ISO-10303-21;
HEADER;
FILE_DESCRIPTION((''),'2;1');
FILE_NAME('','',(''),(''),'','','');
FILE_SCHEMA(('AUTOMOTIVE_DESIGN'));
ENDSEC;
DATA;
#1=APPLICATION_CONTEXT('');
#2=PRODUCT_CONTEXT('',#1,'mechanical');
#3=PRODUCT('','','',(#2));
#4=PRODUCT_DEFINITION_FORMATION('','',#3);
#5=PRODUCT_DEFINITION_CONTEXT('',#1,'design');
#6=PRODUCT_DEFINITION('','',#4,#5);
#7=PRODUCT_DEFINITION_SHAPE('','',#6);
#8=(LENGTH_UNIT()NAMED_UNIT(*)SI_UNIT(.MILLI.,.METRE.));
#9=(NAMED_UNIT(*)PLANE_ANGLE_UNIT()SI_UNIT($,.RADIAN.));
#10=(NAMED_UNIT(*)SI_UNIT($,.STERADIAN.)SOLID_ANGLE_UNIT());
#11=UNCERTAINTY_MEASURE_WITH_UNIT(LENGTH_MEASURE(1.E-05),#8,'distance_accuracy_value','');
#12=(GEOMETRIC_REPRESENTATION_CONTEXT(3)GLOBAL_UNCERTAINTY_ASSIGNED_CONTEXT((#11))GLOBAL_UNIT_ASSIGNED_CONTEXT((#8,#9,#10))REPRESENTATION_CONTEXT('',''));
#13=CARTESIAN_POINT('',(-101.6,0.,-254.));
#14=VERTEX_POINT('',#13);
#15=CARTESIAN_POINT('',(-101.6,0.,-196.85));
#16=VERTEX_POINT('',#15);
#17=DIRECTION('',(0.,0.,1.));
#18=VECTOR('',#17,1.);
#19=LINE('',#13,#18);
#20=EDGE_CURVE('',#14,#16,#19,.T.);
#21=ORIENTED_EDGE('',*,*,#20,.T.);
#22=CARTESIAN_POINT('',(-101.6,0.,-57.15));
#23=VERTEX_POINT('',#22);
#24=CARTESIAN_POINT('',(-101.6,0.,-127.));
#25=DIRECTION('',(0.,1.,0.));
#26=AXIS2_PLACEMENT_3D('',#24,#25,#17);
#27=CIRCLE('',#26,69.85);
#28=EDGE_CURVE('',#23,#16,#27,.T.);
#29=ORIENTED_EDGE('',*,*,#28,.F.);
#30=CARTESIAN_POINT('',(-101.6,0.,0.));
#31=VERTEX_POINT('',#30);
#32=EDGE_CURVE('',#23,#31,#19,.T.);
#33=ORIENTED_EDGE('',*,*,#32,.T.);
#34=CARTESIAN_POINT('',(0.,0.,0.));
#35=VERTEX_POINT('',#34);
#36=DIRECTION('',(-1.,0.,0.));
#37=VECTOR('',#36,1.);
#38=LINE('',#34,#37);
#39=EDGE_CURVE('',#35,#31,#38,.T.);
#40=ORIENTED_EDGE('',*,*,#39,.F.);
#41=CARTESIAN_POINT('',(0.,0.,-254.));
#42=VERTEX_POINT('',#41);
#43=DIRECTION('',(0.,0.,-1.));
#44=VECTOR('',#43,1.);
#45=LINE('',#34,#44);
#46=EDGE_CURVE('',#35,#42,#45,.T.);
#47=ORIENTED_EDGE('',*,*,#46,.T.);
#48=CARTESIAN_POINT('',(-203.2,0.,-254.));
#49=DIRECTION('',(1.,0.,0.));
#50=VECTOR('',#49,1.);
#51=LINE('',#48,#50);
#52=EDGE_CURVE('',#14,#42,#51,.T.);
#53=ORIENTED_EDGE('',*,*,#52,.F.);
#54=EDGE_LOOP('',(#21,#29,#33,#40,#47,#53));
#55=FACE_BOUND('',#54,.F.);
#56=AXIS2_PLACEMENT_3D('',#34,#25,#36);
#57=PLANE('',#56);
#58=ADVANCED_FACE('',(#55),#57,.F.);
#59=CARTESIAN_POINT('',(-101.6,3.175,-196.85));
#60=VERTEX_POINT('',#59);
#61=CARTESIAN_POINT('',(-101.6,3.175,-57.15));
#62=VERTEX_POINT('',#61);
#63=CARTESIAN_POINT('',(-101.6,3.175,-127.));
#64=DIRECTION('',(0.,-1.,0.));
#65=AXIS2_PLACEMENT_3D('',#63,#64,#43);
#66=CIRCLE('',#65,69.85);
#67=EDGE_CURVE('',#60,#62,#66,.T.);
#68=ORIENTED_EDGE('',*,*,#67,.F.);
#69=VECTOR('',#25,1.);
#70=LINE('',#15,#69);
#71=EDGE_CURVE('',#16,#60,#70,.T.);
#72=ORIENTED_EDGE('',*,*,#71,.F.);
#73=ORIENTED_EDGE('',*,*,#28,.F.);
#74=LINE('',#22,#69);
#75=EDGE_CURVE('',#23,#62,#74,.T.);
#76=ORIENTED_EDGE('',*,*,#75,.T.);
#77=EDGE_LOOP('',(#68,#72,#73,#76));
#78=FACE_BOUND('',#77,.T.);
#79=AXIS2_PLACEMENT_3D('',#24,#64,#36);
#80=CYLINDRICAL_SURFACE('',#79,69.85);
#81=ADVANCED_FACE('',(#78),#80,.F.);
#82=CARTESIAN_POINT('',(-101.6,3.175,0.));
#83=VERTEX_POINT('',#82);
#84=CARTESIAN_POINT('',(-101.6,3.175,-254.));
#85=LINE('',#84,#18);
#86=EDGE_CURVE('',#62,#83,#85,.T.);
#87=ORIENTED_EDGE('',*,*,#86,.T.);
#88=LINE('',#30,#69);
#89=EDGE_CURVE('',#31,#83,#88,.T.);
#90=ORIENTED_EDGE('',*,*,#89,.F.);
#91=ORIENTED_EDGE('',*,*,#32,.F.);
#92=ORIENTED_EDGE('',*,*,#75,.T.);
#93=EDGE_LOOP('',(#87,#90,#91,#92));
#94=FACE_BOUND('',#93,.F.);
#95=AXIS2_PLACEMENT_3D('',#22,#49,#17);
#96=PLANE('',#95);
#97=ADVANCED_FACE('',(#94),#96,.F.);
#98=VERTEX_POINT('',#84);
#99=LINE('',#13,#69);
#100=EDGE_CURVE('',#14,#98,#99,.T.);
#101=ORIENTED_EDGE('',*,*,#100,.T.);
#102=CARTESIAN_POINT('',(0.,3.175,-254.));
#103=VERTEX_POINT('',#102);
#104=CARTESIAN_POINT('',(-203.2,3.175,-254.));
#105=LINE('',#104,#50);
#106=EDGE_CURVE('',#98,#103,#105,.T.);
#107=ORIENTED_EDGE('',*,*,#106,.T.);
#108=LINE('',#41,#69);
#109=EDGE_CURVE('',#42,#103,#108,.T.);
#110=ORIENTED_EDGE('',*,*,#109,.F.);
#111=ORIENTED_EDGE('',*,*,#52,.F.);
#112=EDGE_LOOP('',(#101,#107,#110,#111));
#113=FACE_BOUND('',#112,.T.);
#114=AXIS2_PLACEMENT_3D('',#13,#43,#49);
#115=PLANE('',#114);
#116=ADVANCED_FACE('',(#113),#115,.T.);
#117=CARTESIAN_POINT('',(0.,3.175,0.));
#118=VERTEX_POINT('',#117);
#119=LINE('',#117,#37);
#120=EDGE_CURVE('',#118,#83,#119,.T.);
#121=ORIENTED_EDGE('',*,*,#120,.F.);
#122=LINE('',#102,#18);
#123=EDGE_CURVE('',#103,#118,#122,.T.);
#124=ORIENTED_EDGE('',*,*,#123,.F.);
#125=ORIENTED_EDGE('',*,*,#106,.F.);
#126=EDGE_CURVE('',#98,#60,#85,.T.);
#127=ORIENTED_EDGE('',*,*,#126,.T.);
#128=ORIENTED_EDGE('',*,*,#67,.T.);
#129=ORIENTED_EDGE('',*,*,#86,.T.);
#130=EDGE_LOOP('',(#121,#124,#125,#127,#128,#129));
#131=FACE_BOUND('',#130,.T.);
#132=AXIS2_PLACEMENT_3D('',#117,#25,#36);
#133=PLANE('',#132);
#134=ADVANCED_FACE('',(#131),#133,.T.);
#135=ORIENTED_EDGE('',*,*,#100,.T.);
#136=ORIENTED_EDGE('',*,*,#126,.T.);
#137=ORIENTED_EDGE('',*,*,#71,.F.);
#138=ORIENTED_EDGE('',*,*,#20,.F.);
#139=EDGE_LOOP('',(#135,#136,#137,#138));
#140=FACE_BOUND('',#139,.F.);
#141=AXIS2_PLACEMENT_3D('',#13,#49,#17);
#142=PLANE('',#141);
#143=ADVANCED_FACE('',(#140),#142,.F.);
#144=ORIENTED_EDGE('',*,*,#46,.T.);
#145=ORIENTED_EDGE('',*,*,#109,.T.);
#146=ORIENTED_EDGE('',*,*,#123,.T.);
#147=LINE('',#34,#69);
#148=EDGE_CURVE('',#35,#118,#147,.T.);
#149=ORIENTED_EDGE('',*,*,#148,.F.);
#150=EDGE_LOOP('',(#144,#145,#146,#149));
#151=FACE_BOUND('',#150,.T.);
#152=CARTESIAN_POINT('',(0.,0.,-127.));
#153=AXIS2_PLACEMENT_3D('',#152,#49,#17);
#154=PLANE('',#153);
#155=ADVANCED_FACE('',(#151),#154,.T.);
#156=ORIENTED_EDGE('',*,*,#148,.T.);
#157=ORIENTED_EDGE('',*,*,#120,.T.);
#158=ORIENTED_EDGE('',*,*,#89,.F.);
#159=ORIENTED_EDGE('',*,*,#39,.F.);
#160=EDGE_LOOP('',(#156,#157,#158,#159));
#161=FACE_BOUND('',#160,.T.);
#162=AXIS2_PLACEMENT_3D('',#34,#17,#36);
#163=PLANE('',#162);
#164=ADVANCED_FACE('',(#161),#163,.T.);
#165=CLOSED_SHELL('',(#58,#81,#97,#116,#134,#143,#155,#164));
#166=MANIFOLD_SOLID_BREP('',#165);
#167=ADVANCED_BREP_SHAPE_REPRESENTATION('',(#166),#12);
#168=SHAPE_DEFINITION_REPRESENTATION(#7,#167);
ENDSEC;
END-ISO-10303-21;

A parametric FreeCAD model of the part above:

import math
import FreeCAD as App
import Part
import Sketcher

V = App.Vector
Q = App.Units.Quantity

doc = App.newDocument("Part")
body = doc.addObject("PartDesign::Body", "Body")

sketch1 = doc.addObject("Sketcher::SketchObject", "Sketch")
body.addObject(sketch1)
sketch1.AttachmentSupport = (doc.XZ_Plane, [""])
sketch1.MapMode = "FlatFace"
sketch1.addGeometry([
    Part.LineSegment(V(-102, 0, 0), V(0, 0, 0)),
    Part.LineSegment(V(0, 0, 0), V(0, -254, 0)),
    Part.LineSegment(V(0, -254, 0), V(-102, -254, 0)),
    Part.LineSegment(V(-102, -254, 0), V(-102, -197, 0)),
    Part.ArcOfCircle(Part.Circle(V(-102, -127, 0), V(0, 0, 1), 70), math.radians(-90), math.radians(90)),
    Part.LineSegment(V(-102, -57, 0), V(-102, 0, 0)),
], False)
sketch1.addConstraint([
    Sketcher.Constraint("Coincident", 0, 2, 1, 1),
    Sketcher.Constraint("Coincident", 1, 2, 2, 1),
    Sketcher.Constraint("Coincident", 2, 2, 3, 1),
    Sketcher.Constraint("Coincident", 3, 2, 4, 1),
    Sketcher.Constraint("Coincident", 4, 2, 5, 1),
    Sketcher.Constraint("Coincident", 5, 2, 0, 1),
    Sketcher.Constraint("Horizontal", 0),
    Sketcher.Constraint("Vertical", 1),
    Sketcher.Constraint("Horizontal", 2),
    Sketcher.Constraint("Vertical", 3),
    Sketcher.Constraint("Vertical", 5),
    Sketcher.Constraint("Coincident", 0, 2, -1, 1),
    Sketcher.Constraint("Vertical", 4, 3, 2, 2),
    Sketcher.Constraint("Vertical", 3, 2, 4, 2),
    Sketcher.Constraint("Equal", 3, 5),
    Sketcher.Constraint("DistanceY", 1, 2, 1, 1, Q("10 in")),
    Sketcher.Constraint("Radius", 4, Q("2.75 in")),
    Sketcher.Constraint("DistanceX", 0, 1, 0, 2, Q("4 in")),
])
pad1 = doc.addObject("PartDesign::Pad", "Pad")
body.addObject(pad1)
pad1.Profile = sketch1
pad1.Length = Q("0.125 in")
pad1.Reversed = True

doc.recompute()
